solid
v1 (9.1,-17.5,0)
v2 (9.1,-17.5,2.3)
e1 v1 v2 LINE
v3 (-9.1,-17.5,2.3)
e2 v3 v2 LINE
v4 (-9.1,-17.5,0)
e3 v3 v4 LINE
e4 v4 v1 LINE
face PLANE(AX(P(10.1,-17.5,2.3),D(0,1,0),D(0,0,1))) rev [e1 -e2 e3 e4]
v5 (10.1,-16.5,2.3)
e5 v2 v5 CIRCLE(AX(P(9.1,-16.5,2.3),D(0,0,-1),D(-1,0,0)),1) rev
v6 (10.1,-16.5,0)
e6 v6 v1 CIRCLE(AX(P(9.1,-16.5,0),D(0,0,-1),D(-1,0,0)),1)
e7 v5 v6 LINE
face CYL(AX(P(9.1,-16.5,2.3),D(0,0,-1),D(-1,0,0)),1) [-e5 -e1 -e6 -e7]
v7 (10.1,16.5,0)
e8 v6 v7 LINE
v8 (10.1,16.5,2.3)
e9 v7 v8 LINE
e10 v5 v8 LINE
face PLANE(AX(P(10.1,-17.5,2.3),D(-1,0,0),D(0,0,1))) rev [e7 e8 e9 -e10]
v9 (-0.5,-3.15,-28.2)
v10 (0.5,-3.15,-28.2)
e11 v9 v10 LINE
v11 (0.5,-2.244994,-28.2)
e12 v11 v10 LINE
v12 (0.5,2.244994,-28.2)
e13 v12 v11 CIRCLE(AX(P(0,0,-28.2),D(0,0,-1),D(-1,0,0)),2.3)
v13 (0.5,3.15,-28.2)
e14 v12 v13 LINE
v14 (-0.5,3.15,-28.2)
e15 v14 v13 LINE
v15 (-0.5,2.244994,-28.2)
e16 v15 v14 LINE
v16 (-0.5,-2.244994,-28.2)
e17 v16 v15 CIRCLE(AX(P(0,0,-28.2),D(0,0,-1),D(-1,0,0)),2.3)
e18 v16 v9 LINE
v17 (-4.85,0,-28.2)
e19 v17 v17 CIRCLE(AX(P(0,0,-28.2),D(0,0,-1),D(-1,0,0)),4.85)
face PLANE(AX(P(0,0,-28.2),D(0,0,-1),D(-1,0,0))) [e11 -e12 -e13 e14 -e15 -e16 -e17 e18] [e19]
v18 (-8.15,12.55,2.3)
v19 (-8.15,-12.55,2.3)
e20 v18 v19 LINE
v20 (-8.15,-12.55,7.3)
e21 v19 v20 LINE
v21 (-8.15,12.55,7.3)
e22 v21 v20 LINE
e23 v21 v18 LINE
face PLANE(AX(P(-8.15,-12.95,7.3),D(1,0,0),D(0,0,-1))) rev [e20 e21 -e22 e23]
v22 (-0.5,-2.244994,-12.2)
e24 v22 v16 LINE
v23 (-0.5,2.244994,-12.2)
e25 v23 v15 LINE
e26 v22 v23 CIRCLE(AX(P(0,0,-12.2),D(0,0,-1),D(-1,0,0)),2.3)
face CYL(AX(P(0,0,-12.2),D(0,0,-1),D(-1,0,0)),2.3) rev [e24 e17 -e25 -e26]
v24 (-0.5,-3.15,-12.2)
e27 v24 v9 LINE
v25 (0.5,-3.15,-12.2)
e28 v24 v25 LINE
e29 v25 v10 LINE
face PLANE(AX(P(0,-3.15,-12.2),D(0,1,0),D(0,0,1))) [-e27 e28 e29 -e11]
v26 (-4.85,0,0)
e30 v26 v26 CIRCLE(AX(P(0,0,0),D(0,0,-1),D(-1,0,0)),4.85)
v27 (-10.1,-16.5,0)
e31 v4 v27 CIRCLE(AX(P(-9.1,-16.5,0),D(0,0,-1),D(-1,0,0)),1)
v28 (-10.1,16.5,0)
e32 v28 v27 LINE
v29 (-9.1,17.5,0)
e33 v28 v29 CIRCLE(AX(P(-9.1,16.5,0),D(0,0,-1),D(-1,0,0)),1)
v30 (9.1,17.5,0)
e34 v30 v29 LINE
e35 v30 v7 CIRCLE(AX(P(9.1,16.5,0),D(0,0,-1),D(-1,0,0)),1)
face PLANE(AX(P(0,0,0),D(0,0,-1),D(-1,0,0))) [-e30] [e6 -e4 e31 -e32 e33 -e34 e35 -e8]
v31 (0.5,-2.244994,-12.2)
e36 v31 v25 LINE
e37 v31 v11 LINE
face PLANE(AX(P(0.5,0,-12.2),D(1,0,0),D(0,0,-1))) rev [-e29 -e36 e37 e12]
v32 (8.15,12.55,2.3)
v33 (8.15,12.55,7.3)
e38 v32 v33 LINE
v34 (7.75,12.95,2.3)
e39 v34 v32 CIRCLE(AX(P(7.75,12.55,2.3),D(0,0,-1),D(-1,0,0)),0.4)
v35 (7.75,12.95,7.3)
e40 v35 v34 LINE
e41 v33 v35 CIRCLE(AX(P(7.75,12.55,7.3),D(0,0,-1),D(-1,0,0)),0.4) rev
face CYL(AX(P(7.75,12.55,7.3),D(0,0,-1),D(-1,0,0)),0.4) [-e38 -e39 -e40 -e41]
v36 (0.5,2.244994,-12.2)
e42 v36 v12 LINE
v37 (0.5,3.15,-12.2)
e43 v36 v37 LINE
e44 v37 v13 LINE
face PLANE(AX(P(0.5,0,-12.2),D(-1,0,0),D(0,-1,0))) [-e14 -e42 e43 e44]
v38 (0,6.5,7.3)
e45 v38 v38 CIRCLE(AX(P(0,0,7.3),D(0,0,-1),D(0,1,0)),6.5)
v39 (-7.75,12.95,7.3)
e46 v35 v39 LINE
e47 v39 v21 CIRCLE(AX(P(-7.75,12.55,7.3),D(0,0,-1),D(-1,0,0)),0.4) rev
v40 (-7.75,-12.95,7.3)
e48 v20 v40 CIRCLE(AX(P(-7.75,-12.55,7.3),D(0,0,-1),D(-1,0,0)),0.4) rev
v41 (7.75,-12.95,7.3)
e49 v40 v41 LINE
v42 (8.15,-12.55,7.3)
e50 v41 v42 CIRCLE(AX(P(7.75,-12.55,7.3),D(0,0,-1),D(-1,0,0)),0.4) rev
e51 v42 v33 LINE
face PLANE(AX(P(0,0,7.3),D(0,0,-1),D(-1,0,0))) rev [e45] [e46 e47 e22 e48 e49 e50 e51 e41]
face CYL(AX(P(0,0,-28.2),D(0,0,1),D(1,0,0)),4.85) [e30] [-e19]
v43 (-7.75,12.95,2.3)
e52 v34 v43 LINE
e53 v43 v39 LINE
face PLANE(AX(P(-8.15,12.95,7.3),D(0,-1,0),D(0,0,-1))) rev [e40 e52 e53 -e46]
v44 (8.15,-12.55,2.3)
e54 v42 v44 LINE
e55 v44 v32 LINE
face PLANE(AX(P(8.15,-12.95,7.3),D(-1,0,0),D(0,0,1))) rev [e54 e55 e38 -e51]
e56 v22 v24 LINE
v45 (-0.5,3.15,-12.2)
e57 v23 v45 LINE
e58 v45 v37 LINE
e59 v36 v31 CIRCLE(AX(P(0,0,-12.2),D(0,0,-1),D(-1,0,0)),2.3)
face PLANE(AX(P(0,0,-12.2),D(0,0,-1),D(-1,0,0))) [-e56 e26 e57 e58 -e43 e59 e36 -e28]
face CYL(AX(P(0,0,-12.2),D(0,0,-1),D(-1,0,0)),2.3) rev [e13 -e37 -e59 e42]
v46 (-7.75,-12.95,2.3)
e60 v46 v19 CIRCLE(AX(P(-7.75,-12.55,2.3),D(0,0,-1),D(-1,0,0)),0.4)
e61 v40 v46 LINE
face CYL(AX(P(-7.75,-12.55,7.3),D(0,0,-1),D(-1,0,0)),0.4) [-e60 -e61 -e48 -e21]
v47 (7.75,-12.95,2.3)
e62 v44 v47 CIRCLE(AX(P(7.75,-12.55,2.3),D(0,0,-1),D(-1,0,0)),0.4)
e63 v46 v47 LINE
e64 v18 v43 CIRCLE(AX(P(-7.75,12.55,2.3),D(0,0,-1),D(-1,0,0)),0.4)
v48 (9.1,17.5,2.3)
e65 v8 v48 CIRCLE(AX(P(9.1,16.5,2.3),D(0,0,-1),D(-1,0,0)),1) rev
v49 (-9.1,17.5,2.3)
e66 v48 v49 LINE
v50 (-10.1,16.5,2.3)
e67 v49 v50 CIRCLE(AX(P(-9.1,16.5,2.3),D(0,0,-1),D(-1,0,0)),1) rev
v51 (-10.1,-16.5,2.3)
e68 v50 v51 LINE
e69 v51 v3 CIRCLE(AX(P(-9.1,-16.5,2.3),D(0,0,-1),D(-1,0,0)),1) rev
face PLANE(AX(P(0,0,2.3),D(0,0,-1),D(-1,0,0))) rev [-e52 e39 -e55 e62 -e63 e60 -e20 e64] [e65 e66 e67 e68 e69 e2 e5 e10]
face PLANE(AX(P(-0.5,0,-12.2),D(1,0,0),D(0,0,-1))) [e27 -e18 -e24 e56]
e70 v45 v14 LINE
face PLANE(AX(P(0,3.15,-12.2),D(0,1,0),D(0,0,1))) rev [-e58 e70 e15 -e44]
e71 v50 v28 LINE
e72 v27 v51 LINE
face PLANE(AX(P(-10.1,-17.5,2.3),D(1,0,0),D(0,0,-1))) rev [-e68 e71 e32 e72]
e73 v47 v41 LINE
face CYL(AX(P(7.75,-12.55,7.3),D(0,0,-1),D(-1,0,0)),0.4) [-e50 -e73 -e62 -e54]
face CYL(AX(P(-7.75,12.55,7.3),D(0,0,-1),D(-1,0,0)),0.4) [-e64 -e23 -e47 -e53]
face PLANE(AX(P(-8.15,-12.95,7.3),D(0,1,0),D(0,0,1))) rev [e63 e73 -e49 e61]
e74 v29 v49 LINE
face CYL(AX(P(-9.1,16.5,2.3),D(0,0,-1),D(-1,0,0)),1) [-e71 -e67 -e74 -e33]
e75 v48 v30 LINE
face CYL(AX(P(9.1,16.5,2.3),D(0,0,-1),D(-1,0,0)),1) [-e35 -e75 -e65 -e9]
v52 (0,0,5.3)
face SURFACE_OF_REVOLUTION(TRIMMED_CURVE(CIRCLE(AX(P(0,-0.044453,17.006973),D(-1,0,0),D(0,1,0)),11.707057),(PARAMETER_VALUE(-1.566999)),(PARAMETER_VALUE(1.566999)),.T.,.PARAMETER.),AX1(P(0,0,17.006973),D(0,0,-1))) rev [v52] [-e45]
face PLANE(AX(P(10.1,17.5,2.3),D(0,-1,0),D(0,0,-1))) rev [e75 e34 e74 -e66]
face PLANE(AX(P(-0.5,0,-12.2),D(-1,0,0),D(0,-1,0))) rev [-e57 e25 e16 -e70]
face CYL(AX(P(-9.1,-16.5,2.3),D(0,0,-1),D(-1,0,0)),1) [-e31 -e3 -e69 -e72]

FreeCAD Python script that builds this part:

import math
import FreeCAD as App
import Part
import Sketcher
from FreeCAD import Vector
Q = App.Units.Quantity


def edges_at(feature, points):
    """Names of the edges that pass closest to the given points."""
    edges = feature.Shape.Edges
    near = lambda p: min(range(len(edges)), key=lambda i: edges[i].distToShape(Part.Vertex(*p))[0])
    return sorted({f"Edge{near(p) + 1}" for p in points})

doc = App.newDocument("Part")
params = doc.addObject("Spreadsheet::Sheet", "Params")
for row, (alias, value) in enumerate([
    ("sketch1_height", "35 mm"),
    ("sketch1_width", "20.2 mm"),
    ("pad1_length", "2.3 mm"),
    ("sketch2_width", "16.3 mm"),
    ("sketch2_height", "25.9 mm"),
    ("pad2_length", "5 mm"),
    ("sketch3_height", "2 mm"),
    ("sketch3_width", "6.5 mm"),
    ("groove_angle", "360 deg"),
    ("fillet_radius", "1 mm"),
    ("fillet2_radius", "0.4 mm"),
    ("sketch4_diameter", "9.7 mm"),
    ("pad3_length", "28.2 mm"),
    ("sketch5_radius", "2.3 mm"),
    ("sketch5_width", "1 mm"),
    ("pocket1_length", "16 mm"),
], start=1):
    params.set(f"A{row}", alias)
    params.set(f"B{row}", "=" + value)
    params.setAlias(f"B{row}", alias)

body = doc.addObject("PartDesign::Body", "Body")

# Sketch on XY plane
sketch1 = doc.addObject("Sketcher::SketchObject", "Sketch")
body.addObject(sketch1)
sketch1.AttachmentSupport = (doc.XY_Plane, [""])
sketch1.MapMode = "FlatFace"
sketch1.addGeometry([
    Part.LineSegment(Vector(-10, -18, 0), Vector(10, -18, 0)),
    Part.LineSegment(Vector(10, -18, 0), Vector(10, 18, 0)),
    Part.LineSegment(Vector(10, 18, 0), Vector(-10, 18, 0)),
    Part.LineSegment(Vector(-10, 18, 0), Vector(-10, -18, 0)),
], False)
sketch1.addConstraint([
    Sketcher.Constraint("Coincident", 0, 2, 1, 1),
    Sketcher.Constraint("Coincident", 1, 2, 2, 1),
    Sketcher.Constraint("Coincident", 2, 2, 3, 1),
    Sketcher.Constraint("Coincident", 3, 2, 0, 1),
    Sketcher.Constraint("Horizontal", 0),
    Sketcher.Constraint("Vertical", 1),
    Sketcher.Constraint("Horizontal", 2),
    Sketcher.Constraint("Vertical", 3),
    Sketcher.Constraint("Symmetric", 0, 2, 2, 2, -1, 1),
    Sketcher.Constraint("DistanceY", 1, 1, 1, 2, Q("35 mm")),
    Sketcher.Constraint("DistanceX", 0, 1, 0, 2, Q("20.2 mm")),
])
sketch1.setExpression("Constraints[9]", "Params.sketch1_height")
sketch1.setExpression("Constraints[10]", "Params.sketch1_width")
pad1 = doc.addObject("PartDesign::Pad", "Pad")
body.addObject(pad1)
pad1.Profile = sketch1
pad1.setExpression("Length", "Params.pad1_length")

# Sketch on XY plane
sketch2 = doc.addObject("Sketcher::SketchObject", "Sketch001")
body.addObject(sketch2)
sketch2.AttachmentSupport = (doc.XY_Plane, [""])
sketch2.MapMode = "FlatFace"
sketch2.AttachmentOffset = App.Placement(Vector(0, 0, 2.3), App.Rotation())
sketch2.addGeometry([
    Part.LineSegment(Vector(-8, 13, 0), Vector(-8, -13, 0)),
    Part.LineSegment(Vector(-8, -13, 0), Vector(8, -13, 0)),
    Part.LineSegment(Vector(8, -13, 0), Vector(8, 13, 0)),
    Part.LineSegment(Vector(8, 13, 0), Vector(-8, 13, 0)),
], False)
sketch2.addConstraint([
    Sketcher.Constraint("Coincident", 0, 2, 1, 1),
    Sketcher.Constraint("Coincident", 1, 2, 2, 1),
    Sketcher.Constraint("Coincident", 2, 2, 3, 1),
    Sketcher.Constraint("Coincident", 3, 2, 0, 1),
    Sketcher.Constraint("Vertical", 0),
    Sketcher.Constraint("Horizontal", 1),
    Sketcher.Constraint("Vertical", 2),
    Sketcher.Constraint("Horizontal", 3),
    Sketcher.Constraint("Symmetric", 0, 2, 2, 2, -1, 1),
    Sketcher.Constraint("DistanceX", 1, 1, 1, 2, Q("16.3 mm")),
    Sketcher.Constraint("DistanceY", 0, 2, 0, 1, Q("25.9 mm")),
])
sketch2.setExpression("Constraints[9]", "Params.sketch2_width")
sketch2.setExpression("Constraints[10]", "Params.sketch2_height")
pad2 = doc.addObject("PartDesign::Pad", "Pad001")
body.addObject(pad2)
pad2.Profile = sketch2
pad2.setExpression("Length", "Params.pad2_length")

# Sketch on YZ plane
sketch3 = doc.addObject("Sketcher::SketchObject", "Sketch002")
body.addObject(sketch3)
sketch3.AttachmentSupport = (doc.YZ_Plane, [""])
sketch3.MapMode = "FlatFace"
sketch3.addGeometry([
    Part.LineSegment(Vector(0, 7.3, 0), Vector(-6.5, 7.3, 0)),
    Part.ArcOfCircle(Part.Circle(Vector(0, 17, 0), Vector(0, 0, 1), 11.7), math.radians(-124), math.radians(-90)),
    Part.LineSegment(Vector(0, 5.3, 0), Vector(0, 7.3, 0)),
], False)
sketch3.addConstraint([
    Sketcher.Constraint("Coincident", 0, 2, 1, 1),
    Sketcher.Constraint("Coincident", 1, 2, 2, 1),
    Sketcher.Constraint("Coincident", 2, 2, 0, 1),
    Sketcher.Constraint("Horizontal", 0),
    Sketcher.Constraint("Vertical", 2),
    Sketcher.Constraint("PointOnObject", 1, 2, -2),
    Sketcher.Constraint("DistanceY", 2, 1, 2, 2, Q("2 mm")),
    Sketcher.Constraint("DistanceX", 0, 2, 0, 1, Q("6.5 mm")),
    Sketcher.Constraint("DistanceY", -1, 1, 0, 2, Q("7.3 mm")),
    Sketcher.Constraint("Radius", 1, Q("11.707057 mm")),
])
sketch3.setExpression("Constraints[6]", "Params.sketch3_height")
sketch3.setExpression("Constraints[7]", "Params.sketch3_width")
groove = doc.addObject("PartDesign::Groove", "Groove")
body.addObject(groove)
groove.Profile = sketch3
groove.ReferenceAxis = (sketch3, ["V_Axis"])
groove.setExpression("Angle", "Params.groove_angle")
doc.recompute()

fillet = doc.addObject("PartDesign::Fillet", "Fillet")
body.addObject(fillet)
fillet.Base = (groove, edges_at(groove, [
    (10.1, 17.5, 1.15),
    (10.1, -17.5, 1.15),
    (-10.1, -17.5, 1.15),
    (-10.1, 17.5, 1.15),
]))
fillet.setExpression("Radius", "Params.fillet_radius")
doc.recompute()

fillet2 = doc.addObject("PartDesign::Fillet", "Fillet001")
body.addObject(fillet2)
fillet2.Base = (fillet, edges_at(fillet, [
    (8.15, -12.95, 4.8),
    (8.15, 12.95, 4.8),
    (-8.15, 12.95, 4.8),
    (-8.15, -12.95, 4.8),
]))
fillet2.setExpression("Radius", "Params.fillet2_radius")

# Sketch on XY plane
sketch4 = doc.addObject("Sketcher::SketchObject", "Sketch003")
body.addObject(sketch4)
sketch4.AttachmentSupport = (doc.XY_Plane, [""])
sketch4.MapMode = "FlatFace"
sketch4.addGeometry(Part.Circle(Vector(0, 0, 0), Vector(0, 0, 1), 4.8), False)
sketch4.addConstraint([
    Sketcher.Constraint("Coincident", 0, 3, -1, 1),
    Sketcher.Constraint("Diameter", 0, Q("9.7 mm")),
])
sketch4.setExpression("Constraints[1]", "Params.sketch4_diameter")
pad3 = doc.addObject("PartDesign::Pad", "Pad002")
body.addObject(pad3)
pad3.Profile = sketch4
pad3.setExpression("Length", "Params.pad3_length")
pad3.Reversed = True

# Sketch on XY plane
sketch5 = doc.addObject("Sketcher::SketchObject", "Sketch004")
body.addObject(sketch5)
sketch5.AttachmentSupport = (doc.XY_Plane, [""])
sketch5.MapMode = "FlatFace"
sketch5.AttachmentOffset = App.Placement(Vector(0, 0, -28.2), App.Rotation())
sketch5.addGeometry([
    Part.LineSegment(Vector(-0.5, -3.1, 0), Vector(-0.5, -2.2, 0)),  # 0
    Part.ArcOfCircle(Part.Circle(Vector(0, 0, 0), Vector(0, 0, 1), 2.3), math.radians(103), math.radians(257)),  # 1
    Part.LineSegment(Vector(-0.5, 2.2, 0), Vector(-0.5, 3.1, 0)),  # 2
    Part.LineSegment(Vector(-0.5, 3.1, 0), Vector(0.5, 3.1, 0)),  # 3
    Part.LineSegment(Vector(0.5, 3.1, 0), Vector(0.5, 2.2, 0)),  # 4
    Part.ArcOfCircle(Part.Circle(Vector(0, 0, 0), Vector(0, 0, 1), 2.3), math.radians(0), math.radians(77)),  # 5
    Part.ArcOfCircle(Part.Circle(Vector(0, 0, 0), Vector(0, 0, 1), 2.3), math.radians(-77), math.radians(0)),  # 6
    Part.LineSegment(Vector(0.5, -2.2, 0), Vector(0.5, -3.1, 0)),  # 7
    Part.LineSegment(Vector(0.5, -3.1, 0), Vector(-0.5, -3.1, 0)),  # 8
], False)
sketch5.addConstraint([
    Sketcher.Constraint("Coincident", 0, 2, 1, 2),
    Sketcher.Constraint("Coincident", 1, 1, 2, 1),
    Sketcher.Constraint("Coincident", 2, 2, 3, 1),
    Sketcher.Constraint("Coincident", 3, 2, 4, 1),
    Sketcher.Constraint("Coincident", 4, 2, 5, 2),
    Sketcher.Constraint("Tangent", 5, 1, 6, 2),
    Sketcher.Constraint("Coincident", 6, 1, 7, 1),
    Sketcher.Constraint("Coincident", 7, 2, 8, 1),
    Sketcher.Constraint("Coincident", 8, 2, 0, 1),
    Sketcher.Constraint("Vertical", 0),
    Sketcher.Constraint("Vertical", 2),
    Sketcher.Constraint("Horizontal", 3),
    Sketcher.Constraint("Vertical", 4),
    Sketcher.Constraint("Vertical", 7),
    Sketcher.Constraint("Horizontal", 8),
    Sketcher.Constraint("Coincident", 1, 3, -1, 1),
    Sketcher.Constraint("Coincident", 5, 3, -1, 1),
    Sketcher.Constraint("Equal", 1, 5),
    Sketcher.Constraint("Equal", 5, 6),
    Sketcher.Constraint("Symmetric", 2, 2, 7, 2, -1, 1),
    Sketcher.Constraint("PointOnObject", 5, 1, -1),
    Sketcher.Constraint("Horizontal", 1, 1, 4, 2),
    Sketcher.Constraint("Horizontal", 0, 2, 6, 1),
    Sketcher.Constraint("Radius", 1, Q("2.3 mm")),
    Sketcher.Constraint("DistanceX", 3, 1, 3, 2, Q("1 mm")),
    Sketcher.Constraint("DistanceY", -1, 1, 2, 2, Q("3.15 mm")),
])
sketch5.setExpression("Constraints[23]", "Params.sketch5_radius")
sketch5.setExpression("Constraints[24]", "Params.sketch5_width")
pocket1 = doc.addObject("PartDesign::Pocket", "Pocket")
body.addObject(pocket1)
pocket1.Profile = sketch5
pocket1.setExpression("Length", "Params.pocket1_length")
pocket1.Reversed = True

doc.recompute()
